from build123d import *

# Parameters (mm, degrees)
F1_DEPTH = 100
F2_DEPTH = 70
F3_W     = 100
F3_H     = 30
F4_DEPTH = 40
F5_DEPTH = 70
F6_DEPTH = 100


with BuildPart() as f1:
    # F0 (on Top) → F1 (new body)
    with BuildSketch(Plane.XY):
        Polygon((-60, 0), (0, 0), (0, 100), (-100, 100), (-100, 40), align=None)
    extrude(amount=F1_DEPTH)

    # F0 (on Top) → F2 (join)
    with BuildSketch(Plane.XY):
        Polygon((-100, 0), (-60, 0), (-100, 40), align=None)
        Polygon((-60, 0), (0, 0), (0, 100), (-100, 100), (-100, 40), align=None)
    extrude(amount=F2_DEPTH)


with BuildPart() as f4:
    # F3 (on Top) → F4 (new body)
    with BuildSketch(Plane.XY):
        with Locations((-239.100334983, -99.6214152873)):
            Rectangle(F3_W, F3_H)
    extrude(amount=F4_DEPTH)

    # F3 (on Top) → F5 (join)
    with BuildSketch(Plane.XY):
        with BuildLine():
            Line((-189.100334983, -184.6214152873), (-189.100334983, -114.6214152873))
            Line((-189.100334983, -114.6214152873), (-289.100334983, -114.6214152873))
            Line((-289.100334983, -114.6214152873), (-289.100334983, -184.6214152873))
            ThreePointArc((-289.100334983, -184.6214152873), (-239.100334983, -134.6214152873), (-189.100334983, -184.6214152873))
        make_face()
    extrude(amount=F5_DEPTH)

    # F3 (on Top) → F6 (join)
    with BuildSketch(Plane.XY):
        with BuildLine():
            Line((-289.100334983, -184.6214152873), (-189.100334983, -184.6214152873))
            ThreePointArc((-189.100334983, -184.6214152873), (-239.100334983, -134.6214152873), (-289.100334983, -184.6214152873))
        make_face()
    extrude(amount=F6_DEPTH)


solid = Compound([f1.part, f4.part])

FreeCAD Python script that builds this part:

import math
import FreeCAD as App
import Part
import Sketcher

V = App.Vector

doc = App.newDocument("Part")
body = doc.addObject("PartDesign::Body", "Body")

# Sketch on XY plane
sketch1 = body.newObject("Sketcher::SketchObject", "Sketch")
sketch1.AttachmentSupport = (doc.getObject("XY_Plane"), [""])
sketch1.MapMode = "FlatFace"
sketch1.addGeometry([
    Part.LineSegment(V(-60, 0, 0), V(0, 0, 0)),  # 0
    Part.LineSegment(V(0, 0, 0), V(0, 100, 0)),  # 1
    Part.LineSegment(V(0, 100, 0), V(-100, 100, 0)),  # 2
    Part.LineSegment(V(-100, 100, 0), V(-100, 40, 0)),  # 3
    Part.LineSegment(V(-100, 40, 0), V(-60, 0, 0)),  # 4
], False)
sketch1.addConstraint([
    Sketcher.Constraint("Coincident", 0, 2, 1, 1),
    Sketcher.Constraint("Coincident", 1, 2, 2, 1),
    Sketcher.Constraint("Coincident", 2, 2, 3, 1),
    Sketcher.Constraint("Coincident", 3, 2, 4, 1),
    Sketcher.Constraint("Coincident", 4, 2, 0, 1),
    Sketcher.Constraint("Horizontal", 0),
    Sketcher.Constraint("Vertical", 1),
    Sketcher.Constraint("Horizontal", 2),
    Sketcher.Constraint("Vertical", 3),
    Sketcher.Constraint("Coincident", 0, 2, -1, 1),
    Sketcher.Constraint("Equal", 2, 1),
    Sketcher.Constraint("Equal", 0, 3),
    Sketcher.Constraint("DistanceX", 0, 1, 0, 2, 60.0),
    Sketcher.Constraint("DistanceX", 2, 2, 2, 1, 100.0),
])
pad1 = body.newObject("PartDesign::Pad", "Pad")
pad1.Profile = sketch1
pad1.Length = 100

# Sketch on XY plane
sketch2 = body.newObject("Sketcher::SketchObject", "Sketch001")
sketch2.AttachmentSupport = (doc.getObject("XY_Plane"), [""])
sketch2.MapMode = "FlatFace"
sketch2.addGeometry([
    Part.LineSegment(V(-100, 0, 0), V(0, 0, 0)),
    Part.LineSegment(V(0, 0, 0), V(0, 100, 0)),
    Part.LineSegment(V(0, 100, 0), V(-100, 100, 0)),
    Part.LineSegment(V(-100, 100, 0), V(-100, 0, 0)),
], False)
sketch2.addConstraint([
    Sketcher.Constraint("Coincident", 0, 2, 1, 1),
    Sketcher.Constraint("Coincident", 1, 2, 2, 1),
    Sketcher.Constraint("Coincident", 2, 2, 3, 1),
    Sketcher.Constraint("Coincident", 3, 2, 0, 1),
    Sketcher.Constraint("Horizontal", 0),
    Sketcher.Constraint("Vertical", 1),
    Sketcher.Constraint("Horizontal", 2),
    Sketcher.Constraint("Vertical", 3),
    Sketcher.Constraint("Coincident", 0, 2, -1, 1),
    Sketcher.Constraint("Equal", 2, 1),
    Sketcher.Constraint("DistanceX", 0, 1, 0, 2, 100.0),
])
pad2 = body.newObject("PartDesign::Pad", "Pad001")
pad2.Profile = sketch2
pad2.Length = 70
body2 = doc.addObject("PartDesign::Body", "Body001")

# Sketch on XY plane
sketch3 = body2.newObject("Sketcher::SketchObject", "Sketch002")
sketch3.AttachmentSupport = (doc.getObject("XY_Plane001"), [""])
sketch3.MapMode = "FlatFace"
sketch3.addGeometry([
    Part.LineSegment(V(-289, -85, 0), V(-289, -115, 0)),
    Part.LineSegment(V(-289, -115, 0), V(-189, -115, 0)),
    Part.LineSegment(V(-189, -115, 0), V(-189, -85, 0)),
    Part.LineSegment(V(-189, -85, 0), V(-289, -85, 0)),
], False)
sketch3.addConstraint([
    Sketcher.Constraint("Coincident", 0, 2, 1, 1),
    Sketcher.Constraint("Coincident", 1, 2, 2, 1),
    Sketcher.Constraint("Coincident", 2, 2, 3, 1),
    Sketcher.Constraint("Coincident", 3, 2, 0, 1),
    Sketcher.Constraint("Vertical", 0),
    Sketcher.Constraint("Horizontal", 1),
    Sketcher.Constraint("Vertical", 2),
    Sketcher.Constraint("Horizontal", 3),
    Sketcher.Constraint("DistanceX", 1, 1, 1, 2, 100.0),
    Sketcher.Constraint("DistanceY", 0, 2, 0, 1, 30.0),
    Sketcher.Constraint("DistanceX", 0, 2, -1, 1, 289.100335),
    Sketcher.Constraint("DistanceY", 0, 2, -1, 1, 114.621415),
])
pad3 = body2.newObject("PartDesign::Pad", "Pad002")
pad3.Profile = sketch3
pad3.Length = 40

# Sketch on XY plane
sketch4 = body2.newObject("Sketcher::SketchObject", "Sketch003")
sketch4.AttachmentSupport = (doc.getObject("XY_Plane001"), [""])
sketch4.MapMode = "FlatFace"
sketch4.addGeometry([
    Part.LineSegment(V(-189, -185, 0), V(-189, -115, 0)),
    Part.LineSegment(V(-189, -115, 0), V(-289, -115, 0)),
    Part.LineSegment(V(-289, -115, 0), V(-289, -185, 0)),
    Part.ArcOfCircle(Part.Circle(V(-239, -185, 0), V(0, 0, 1), 50), math.radians(0), math.radians(180)),
], False)
sketch4.addConstraint([
    Sketcher.Constraint("Coincident", 0, 2, 1, 1),
    Sketcher.Constraint("Coincident", 1, 2, 2, 1),
    Sketcher.Constraint("Tangent", 2, 2, 3, 2),
    Sketcher.Constraint("Tangent", 3, 1, 0, 1),
    Sketcher.Constraint("Vertical", 0),
    Sketcher.Constraint("Horizontal", 1),
    Sketcher.Constraint("Vertical", 2),
    Sketcher.Constraint("Radius", 3, 50.0),
    Sketcher.Constraint("DistanceY", 0, 1, 0, 2, 70.0),
    Sketcher.Constraint("DistanceX", 3, 3, -1, 1, 239.100335),
    Sketcher.Constraint("DistanceY", 3, 3, -1, 1, 184.621415),
])
pad4 = body2.newObject("PartDesign::Pad", "Pad003")
pad4.Profile = sketch4
pad4.Length = 70

# Sketch on XY plane
sketch5 = body2.newObject("Sketcher::SketchObject", "Sketch004")
sketch5.AttachmentSupport = (doc.getObject("XY_Plane001"), [""])
sketch5.MapMode = "FlatFace"
sketch5.addGeometry([
    Part.LineSegment(V(-289, -185, 0), V(-189, -185, 0)),
    Part.ArcOfCircle(Part.Circle(V(-239, -185, 0), V(0, 0, 1), 50), math.radians(0), math.radians(180)),
], False)
sketch5.addConstraint([
    Sketcher.Constraint("Coincident", 0, 1, 1, 2),
    Sketcher.Constraint("Coincident", 1, 1, 0, 2),
    Sketcher.Constraint("Horizontal", 0),
    Sketcher.Constraint("Horizontal", 1, 3, 0, 1),
    Sketcher.Constraint("Radius", 1, 50.0),
    Sketcher.Constraint("DistanceX", 1, 3, -1, 1, 239.100335),
    Sketcher.Constraint("DistanceY", 1, 3, -1, 1, 184.621415),
])
pad5 = body2.newObject("PartDesign::Pad", "Pad004")
pad5.Profile = sketch5
pad5.Length = 100

doc.recompute()
